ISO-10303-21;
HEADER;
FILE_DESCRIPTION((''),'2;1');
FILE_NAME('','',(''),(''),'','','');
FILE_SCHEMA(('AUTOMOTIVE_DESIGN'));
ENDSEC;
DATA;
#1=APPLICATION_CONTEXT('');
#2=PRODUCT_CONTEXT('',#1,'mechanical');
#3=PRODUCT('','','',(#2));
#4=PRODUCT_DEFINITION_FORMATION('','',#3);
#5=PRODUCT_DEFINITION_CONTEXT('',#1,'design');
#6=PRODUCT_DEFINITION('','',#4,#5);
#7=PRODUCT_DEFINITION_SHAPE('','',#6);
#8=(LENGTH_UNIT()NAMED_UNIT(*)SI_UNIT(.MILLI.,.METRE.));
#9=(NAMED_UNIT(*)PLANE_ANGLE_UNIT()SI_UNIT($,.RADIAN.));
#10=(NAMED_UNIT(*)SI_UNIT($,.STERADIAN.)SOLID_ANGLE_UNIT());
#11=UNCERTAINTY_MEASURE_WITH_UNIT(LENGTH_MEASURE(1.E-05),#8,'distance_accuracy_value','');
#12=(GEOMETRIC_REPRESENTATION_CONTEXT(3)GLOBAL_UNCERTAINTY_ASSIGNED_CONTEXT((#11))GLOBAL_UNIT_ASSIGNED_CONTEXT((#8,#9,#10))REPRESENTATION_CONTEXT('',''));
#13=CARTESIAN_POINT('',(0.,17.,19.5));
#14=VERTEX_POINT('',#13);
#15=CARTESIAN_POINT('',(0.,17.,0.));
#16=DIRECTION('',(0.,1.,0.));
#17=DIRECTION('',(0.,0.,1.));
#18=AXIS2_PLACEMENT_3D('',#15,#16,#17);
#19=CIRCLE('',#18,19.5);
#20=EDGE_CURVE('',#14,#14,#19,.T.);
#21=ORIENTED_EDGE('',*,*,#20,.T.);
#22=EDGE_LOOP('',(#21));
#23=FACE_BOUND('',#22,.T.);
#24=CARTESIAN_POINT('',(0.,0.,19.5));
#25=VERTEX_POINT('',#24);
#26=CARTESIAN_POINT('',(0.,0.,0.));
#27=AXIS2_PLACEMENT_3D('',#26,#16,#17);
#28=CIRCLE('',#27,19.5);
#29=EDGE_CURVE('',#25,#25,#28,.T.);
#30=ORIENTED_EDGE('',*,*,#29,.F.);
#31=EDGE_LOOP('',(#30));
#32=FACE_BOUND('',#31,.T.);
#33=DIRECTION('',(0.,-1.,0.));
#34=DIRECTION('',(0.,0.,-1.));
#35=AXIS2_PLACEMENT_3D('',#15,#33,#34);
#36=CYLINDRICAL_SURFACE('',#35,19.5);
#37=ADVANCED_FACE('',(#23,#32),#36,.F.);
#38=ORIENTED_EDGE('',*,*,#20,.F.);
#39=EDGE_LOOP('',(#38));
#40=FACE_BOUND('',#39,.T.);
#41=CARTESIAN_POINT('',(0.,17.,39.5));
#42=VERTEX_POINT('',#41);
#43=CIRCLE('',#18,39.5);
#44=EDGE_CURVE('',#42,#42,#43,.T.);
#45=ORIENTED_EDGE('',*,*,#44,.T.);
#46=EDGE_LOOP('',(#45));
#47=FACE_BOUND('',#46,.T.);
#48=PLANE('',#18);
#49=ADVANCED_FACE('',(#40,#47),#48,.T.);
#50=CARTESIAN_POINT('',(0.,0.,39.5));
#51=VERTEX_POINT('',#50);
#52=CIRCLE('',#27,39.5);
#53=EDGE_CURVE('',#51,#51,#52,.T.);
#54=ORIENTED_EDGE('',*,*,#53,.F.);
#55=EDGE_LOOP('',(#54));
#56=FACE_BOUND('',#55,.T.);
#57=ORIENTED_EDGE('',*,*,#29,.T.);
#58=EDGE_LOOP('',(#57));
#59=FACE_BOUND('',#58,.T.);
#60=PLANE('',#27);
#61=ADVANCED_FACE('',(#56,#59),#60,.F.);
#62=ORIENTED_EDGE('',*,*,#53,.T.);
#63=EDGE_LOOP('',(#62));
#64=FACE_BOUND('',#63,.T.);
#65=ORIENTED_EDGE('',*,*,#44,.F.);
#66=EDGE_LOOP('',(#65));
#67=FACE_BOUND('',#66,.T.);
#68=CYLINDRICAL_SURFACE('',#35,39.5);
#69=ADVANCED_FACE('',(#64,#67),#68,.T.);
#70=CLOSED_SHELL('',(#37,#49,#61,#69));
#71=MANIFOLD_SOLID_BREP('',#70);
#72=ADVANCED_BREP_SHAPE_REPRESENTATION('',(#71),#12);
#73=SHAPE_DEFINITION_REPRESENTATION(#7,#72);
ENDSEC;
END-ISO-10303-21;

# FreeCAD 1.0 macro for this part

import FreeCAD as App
import Part
import Sketcher

doc = App.newDocument("Part")
body = doc.addObject("PartDesign::Body", "Body")

# Sketch on XZ plane
sketch1 = body.newObject("Sketcher::SketchObject", "Sketch")
sketch1.AttachmentSupport = (doc.getObject("XZ_Plane"), [""])
sketch1.MapMode = "FlatFace"
sketch1.addGeometry([
    Part.Circle(App.Vector(0, 0, 0), App.Vector(0, 0, 1), 40),
    Part.Circle(App.Vector(0, 0, 0), App.Vector(0, 0, 1), 20),
], False)
sketch1.addConstraint([
    Sketcher.Constraint("Coincident", 0, 3, -1, 1),
    Sketcher.Constraint("Coincident", 1, 3, -1, 1),
    Sketcher.Constraint("Diameter", 0, 79.0),
    Sketcher.Constraint("Diameter", 1, 39.0),
])
pad1 = body.newObject("PartDesign::Pad", "Pad")
pad1.Profile = sketch1
pad1.Length = 17
pad1.Reversed = True

doc.recompute()
